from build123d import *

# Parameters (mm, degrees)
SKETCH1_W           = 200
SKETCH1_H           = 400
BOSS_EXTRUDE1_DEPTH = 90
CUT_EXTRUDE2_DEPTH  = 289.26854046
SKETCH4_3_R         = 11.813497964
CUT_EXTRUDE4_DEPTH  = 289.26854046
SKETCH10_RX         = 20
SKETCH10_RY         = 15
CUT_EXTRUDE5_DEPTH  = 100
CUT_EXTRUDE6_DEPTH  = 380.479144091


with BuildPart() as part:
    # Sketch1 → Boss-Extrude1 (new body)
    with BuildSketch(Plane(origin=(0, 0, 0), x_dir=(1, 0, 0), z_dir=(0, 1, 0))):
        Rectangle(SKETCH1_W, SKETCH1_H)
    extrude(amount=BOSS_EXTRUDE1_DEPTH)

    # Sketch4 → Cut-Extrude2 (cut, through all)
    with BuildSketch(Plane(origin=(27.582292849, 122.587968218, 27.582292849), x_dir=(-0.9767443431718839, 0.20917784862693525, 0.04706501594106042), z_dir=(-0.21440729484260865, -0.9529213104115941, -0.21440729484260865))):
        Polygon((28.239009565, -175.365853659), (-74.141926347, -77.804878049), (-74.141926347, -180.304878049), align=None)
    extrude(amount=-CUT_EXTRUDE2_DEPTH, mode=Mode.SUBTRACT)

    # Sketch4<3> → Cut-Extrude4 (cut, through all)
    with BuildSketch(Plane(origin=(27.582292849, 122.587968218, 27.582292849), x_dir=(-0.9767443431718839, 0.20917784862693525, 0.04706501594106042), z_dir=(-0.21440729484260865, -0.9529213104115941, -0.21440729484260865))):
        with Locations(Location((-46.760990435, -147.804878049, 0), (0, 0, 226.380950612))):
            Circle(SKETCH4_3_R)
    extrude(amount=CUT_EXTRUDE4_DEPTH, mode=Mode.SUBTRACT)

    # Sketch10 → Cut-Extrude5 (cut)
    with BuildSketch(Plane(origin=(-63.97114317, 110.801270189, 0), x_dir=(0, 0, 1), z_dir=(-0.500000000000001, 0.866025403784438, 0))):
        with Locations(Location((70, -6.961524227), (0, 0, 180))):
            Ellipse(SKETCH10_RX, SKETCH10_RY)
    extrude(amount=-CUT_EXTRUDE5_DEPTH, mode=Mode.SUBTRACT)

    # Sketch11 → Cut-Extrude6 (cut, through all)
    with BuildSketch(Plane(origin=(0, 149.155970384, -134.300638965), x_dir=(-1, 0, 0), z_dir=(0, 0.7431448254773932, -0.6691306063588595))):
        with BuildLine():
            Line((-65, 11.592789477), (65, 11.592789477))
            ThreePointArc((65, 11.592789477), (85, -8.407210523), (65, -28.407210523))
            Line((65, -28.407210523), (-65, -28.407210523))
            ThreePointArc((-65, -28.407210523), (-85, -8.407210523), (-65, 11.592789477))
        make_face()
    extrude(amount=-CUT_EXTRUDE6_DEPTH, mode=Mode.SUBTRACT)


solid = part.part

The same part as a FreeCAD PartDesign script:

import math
import FreeCAD as App
import Part
import Sketcher

V = App.Vector


def add_polygon(sketch, points):
    """Adds a closed chain of lines whose ends are joined by coincident constraints."""
    first, n = sketch.GeometryCount, len(points)
    for a, b in zip(points, points[1:] + points[:1]):
        sketch.addGeometry(Part.LineSegment(App.Vector(*a, 0), App.Vector(*b, 0)), False)
    for i in range(n):
        sketch.addConstraint(Sketcher.Constraint("Coincident", first + i, 2, first + (i + 1) % n, 1))

doc = App.newDocument("Part")
params = doc.addObject("Spreadsheet::Sheet", "Params")
for row, (alias, value) in enumerate([
    ("sketch1_width", "200 mm"),
    ("sketch1_height", "400 mm"),
    ("pad1_length", "90 mm"),
    ("sketch2_height", "102.5 mm"),
    ("sketch2_length", "102.5 mm"),
    ("pocket3_length", "100 mm"),
    ("sketch5_radius", "20 mm"),
    ("sketch5_width", "130 mm"),
], start=1):
    params.set(f"A{row}", alias)
    params.set(f"B{row}", "=" + value)
    params.setAlias(f"B{row}", alias)

body = doc.addObject("PartDesign::Body", "Body")

# Sketch on XZ plane
sketch1 = body.newObject("Sketcher::SketchObject", "Sketch")
sketch1.AttachmentSupport = (doc.getObject("XZ_Plane"), [""])
sketch1.MapMode = "FlatFace"
add_polygon(sketch1, [(-100, -200), (-100, 200), (100, 200), (100, -200)])  # lines 0-3
sketch1.addConstraint(Sketcher.Constraint("Vertical", 0))
sketch1.addConstraint(Sketcher.Constraint("Horizontal", 1))
sketch1.addConstraint(Sketcher.Constraint("Vertical", 2))
sketch1.addConstraint(Sketcher.Constraint("Horizontal", 3))
sketch1.addConstraint(Sketcher.Constraint("Symmetric", 0, 2, 2, 2, -1, 1))
sketch1.addConstraint(Sketcher.Constraint("DistanceX", 1, 1, 1, 2, 200.0))
sketch1.addConstraint(Sketcher.Constraint("DistanceY", 0, 1, 0, 2, 400.0))
sketch1.setExpression("Constraints[9]", "Params.sketch1_width")
sketch1.setExpression("Constraints[10]", "Params.sketch1_height")
pad1 = body.newObject("PartDesign::Pad", "Pad")
pad1.Profile = sketch1
pad1.setExpression("Length", "Params.pad1_length")
pad1.Reversed = True

# Sketch on an angled plane
sketch2 = body.newObject("Sketcher::SketchObject", "Sketch001")
sketch2.Placement = App.Placement(V(27.582293, 122.587968, 27.582293), App.Rotation(V(-0.976744343, 0.209177849, 0.047065016), V(0, 0.219512195, -0.975609756), V(-0.214407295, -0.95292131, -0.214407295), "ZXY"))
add_polygon(sketch2, [(28, -175), (-74, -78), (-74, -180)])  # lines 0-2
sketch2.addConstraint(Sketcher.Constraint("Vertical", 1))
sketch2.addConstraint(Sketcher.Constraint("DistanceY", 1, 2, 1, 1, 102.5))
sketch2.addConstraint(Sketcher.Constraint("Distance", 2, 102.5))
sketch2.addConstraint(Sketcher.Constraint("DistanceX", -1, 1, 2, 2, 28.23901))
sketch2.addConstraint(Sketcher.Constraint("Distance", 0, 141.421356))
sketch2.addConstraint(Sketcher.Constraint("DistanceY", 0, 2, -1, 1, 77.804878))
sketch2.setExpression("Constraints[4]", "Params.sketch2_height")
sketch2.setExpression("Constraints[5]", "Params.sketch2_length")
pocket1 = body.newObject("PartDesign::Pocket", "Pocket")
pocket1.Profile = sketch2
pocket1.Type = "ThroughAll"

# Sketch on an angled plane
sketch3 = body.newObject("Sketcher::SketchObject", "Sketch002")
sketch3.Placement = App.Placement(V(27.582293, 122.587968, 27.582293), App.Rotation(V(-0.976744343, 0.209177849, 0.047065016), V(0, 0.219512195, -0.975609756), V(-0.214407295, -0.95292131, -0.214407295), "ZXY"))
sketch3.addGeometry(Part.Circle(V(-47, -148, 0), V(0, 0, 1), 12), False)
sketch3.addConstraint(Sketcher.Constraint("Diameter", 0, 23.626996))
sketch3.addConstraint(Sketcher.Constraint("DistanceX", 0, 3, -1, 1, 46.76099))
sketch3.addConstraint(Sketcher.Constraint("DistanceY", 0, 3, -1, 1, 147.804878))
pocket2 = body.newObject("PartDesign::Pocket", "Pocket001")
pocket2.Profile = sketch3
pocket2.Type = "ThroughAll"
pocket2.Reversed = True

# Sketch on an angled plane
sketch4 = body.newObject("Sketcher::SketchObject", "Sketch003")
sketch4.Placement = App.Placement(V(-63.971143, 110.80127, 0), App.Rotation(V(0, 0, 1), V(0.866025404, 0.5, 0), V(-0.5, 0.866025404, 0), "ZXY"))
sketch4.addGeometry(Part.Ellipse(V(50, -6.961524, 0), V(70, -21.961524, 0), V(70, -6.961524, 0)), False)
sketch4.addConstraint(Sketcher.Constraint("Block", 0))
pocket3 = body.newObject("PartDesign::Pocket", "Pocket002")
pocket3.Profile = sketch4
pocket3.setExpression("Length", "Params.pocket3_length")

# Sketch on an angled plane
sketch5 = body.newObject("Sketcher::SketchObject", "Sketch004")
sketch5.Placement = App.Placement(V(0, 149.15597, -134.300639), App.Rotation(V(-1, 0, 0), V(0, 0.669130606, 0.743144825), V(0, 0.743144825, -0.669130606), "ZXY"))
sketch5.addGeometry(Part.LineSegment(V(65, 12, 0), V(-65, 12, 0)), False)
sketch5.addGeometry(Part.ArcOfCircle(Part.Circle(V(-65, -8, 0), V(0, 0, 1), 20), math.radians(90), math.radians(270)), False)
sketch5.addGeometry(Part.LineSegment(V(-65, -28, 0), V(65, -28, 0)), False)
sketch5.addGeometry(Part.ArcOfCircle(Part.Circle(V(65, -8, 0), V(0, 0, 1), 20), math.radians(-90), math.radians(90)), False)
sketch5.addConstraint(Sketcher.Constraint("Tangent", 0, 2, 1, 1))
sketch5.addConstraint(Sketcher.Constraint("Tangent", 1, 2, 2, 1))
sketch5.addConstraint(Sketcher.Constraint("Tangent", 2, 2, 3, 1))
sketch5.addConstraint(Sketcher.Constraint("Tangent", 3, 2, 0, 1))
sketch5.addConstraint(Sketcher.Constraint("Horizontal", 0))
sketch5.addConstraint(Sketcher.Constraint("Horizontal", 2))
sketch5.addConstraint(Sketcher.Constraint("Radius", 1, 20.0))
sketch5.addConstraint(Sketcher.Constraint("DistanceX", 0, 2, 0, 1, 130.0))
sketch5.addConstraint(Sketcher.Constraint("DistanceX", 1, 3, -1, 1, 65.0))
sketch5.addConstraint(Sketcher.Constraint("DistanceY", 1, 3, -1, 1, 8.407211))
sketch5.setExpression("Constraints[6]", "Params.sketch5_radius")
sketch5.setExpression("Constraints[7]", "Params.sketch5_width")
pocket4 = body.newObject("PartDesign::Pocket", "Pocket003")
pocket4.Profile = sketch5
pocket4.Type = "ThroughAll"

doc.recompute()
